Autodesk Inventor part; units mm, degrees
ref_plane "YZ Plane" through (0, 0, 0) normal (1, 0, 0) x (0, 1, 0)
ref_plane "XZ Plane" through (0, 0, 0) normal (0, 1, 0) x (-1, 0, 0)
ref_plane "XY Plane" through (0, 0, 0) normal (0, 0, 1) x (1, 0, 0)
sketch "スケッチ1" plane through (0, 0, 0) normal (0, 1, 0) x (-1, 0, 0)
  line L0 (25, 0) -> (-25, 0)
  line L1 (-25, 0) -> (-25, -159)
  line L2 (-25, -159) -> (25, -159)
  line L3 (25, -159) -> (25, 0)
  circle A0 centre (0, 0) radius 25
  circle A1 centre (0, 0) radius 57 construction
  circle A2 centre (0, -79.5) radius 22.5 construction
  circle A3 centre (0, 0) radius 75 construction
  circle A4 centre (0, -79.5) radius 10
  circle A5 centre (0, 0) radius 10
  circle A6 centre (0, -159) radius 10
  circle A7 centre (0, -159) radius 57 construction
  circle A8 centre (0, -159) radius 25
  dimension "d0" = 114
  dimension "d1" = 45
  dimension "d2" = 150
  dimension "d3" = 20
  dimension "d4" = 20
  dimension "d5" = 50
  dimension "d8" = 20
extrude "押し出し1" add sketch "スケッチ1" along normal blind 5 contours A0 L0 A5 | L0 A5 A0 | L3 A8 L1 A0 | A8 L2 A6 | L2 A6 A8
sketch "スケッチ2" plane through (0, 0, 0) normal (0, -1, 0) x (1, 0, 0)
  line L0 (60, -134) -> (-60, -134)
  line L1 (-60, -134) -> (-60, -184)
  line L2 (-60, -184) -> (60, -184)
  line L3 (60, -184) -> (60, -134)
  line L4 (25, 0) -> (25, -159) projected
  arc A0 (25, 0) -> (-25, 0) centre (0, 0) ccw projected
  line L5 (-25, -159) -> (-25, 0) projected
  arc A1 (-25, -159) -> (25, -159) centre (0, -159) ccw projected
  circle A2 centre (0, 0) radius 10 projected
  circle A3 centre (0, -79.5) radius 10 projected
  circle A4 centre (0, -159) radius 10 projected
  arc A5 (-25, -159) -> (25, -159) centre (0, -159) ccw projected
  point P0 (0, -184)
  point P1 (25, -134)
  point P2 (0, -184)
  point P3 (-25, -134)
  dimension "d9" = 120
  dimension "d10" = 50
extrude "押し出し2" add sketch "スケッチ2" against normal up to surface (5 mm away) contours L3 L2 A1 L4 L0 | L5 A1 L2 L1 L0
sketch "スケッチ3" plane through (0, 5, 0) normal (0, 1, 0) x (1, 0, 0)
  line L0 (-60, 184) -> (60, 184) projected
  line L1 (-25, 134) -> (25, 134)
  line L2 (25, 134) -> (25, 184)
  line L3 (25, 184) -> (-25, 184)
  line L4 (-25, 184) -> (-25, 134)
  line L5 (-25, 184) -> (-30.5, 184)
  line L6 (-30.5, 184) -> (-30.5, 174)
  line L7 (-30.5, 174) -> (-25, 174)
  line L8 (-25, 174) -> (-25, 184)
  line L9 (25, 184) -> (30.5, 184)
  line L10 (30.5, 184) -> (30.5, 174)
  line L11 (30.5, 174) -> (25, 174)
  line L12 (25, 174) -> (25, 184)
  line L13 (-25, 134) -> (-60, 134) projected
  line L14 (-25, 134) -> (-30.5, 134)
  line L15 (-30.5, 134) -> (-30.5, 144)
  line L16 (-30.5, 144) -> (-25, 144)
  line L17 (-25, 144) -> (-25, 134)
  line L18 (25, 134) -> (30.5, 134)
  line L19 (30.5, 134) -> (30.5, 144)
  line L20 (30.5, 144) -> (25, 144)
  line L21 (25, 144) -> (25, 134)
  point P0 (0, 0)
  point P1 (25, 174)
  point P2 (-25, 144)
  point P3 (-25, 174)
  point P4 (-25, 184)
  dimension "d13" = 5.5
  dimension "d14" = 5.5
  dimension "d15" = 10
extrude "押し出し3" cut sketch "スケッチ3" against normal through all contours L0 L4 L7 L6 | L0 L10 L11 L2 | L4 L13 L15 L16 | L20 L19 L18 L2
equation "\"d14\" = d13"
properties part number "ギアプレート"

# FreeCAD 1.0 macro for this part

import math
import FreeCAD as App
import Part
import Sketcher
from FreeCAD import Vector
Q = App.Units.Quantity


def add_polygon(sketch, points):
    """Adds a closed chain of lines whose ends are joined by coincident constraints."""
    first, n = sketch.GeometryCount, len(points)
    for a, b in zip(points, points[1:] + points[:1]):
        sketch.addGeometry(Part.LineSegment(App.Vector(*a, 0), App.Vector(*b, 0)), False)
    for i in range(n):
        sketch.addConstraint(Sketcher.Constraint("Coincident", first + i, 2, first + (i + 1) % n, 1))

doc = App.newDocument("Part")
body = doc.addObject("PartDesign::Body", "Body")

sketch1 = doc.addObject("Sketcher::SketchObject", "Sketch")
body.addObject(sketch1)
sketch1.AttachmentSupport = (doc.XZ_Plane, [""])
sketch1.MapMode = "FlatFace"
sketch1.addGeometry([
    Part.LineSegment(Vector(-25, -159, 0), Vector(-25, 0, 0)),
    Part.ArcOfCircle(Part.Circle(Vector(0, 0, 0), Vector(0, 0, 1), 25), math.radians(0), math.radians(180)),
    Part.LineSegment(Vector(25, 0, 0), Vector(25, -159, 0)),
    Part.ArcOfCircle(Part.Circle(Vector(0, -159, 0), Vector(0, 0, 1), 25), math.radians(180), math.radians(360)),
    Part.Circle(Vector(0, 0, 0), Vector(0, 0, 1), 10),
    Part.Circle(Vector(0, -79.5, 0), Vector(0, 0, 1), 10),
    Part.Circle(Vector(0, -159, 0), Vector(0, 0, 1), 10),
], False)
sketch1.addConstraint([
    Sketcher.Constraint("Tangent", 0, 2, 1, 2),
    Sketcher.Constraint("Tangent", 1, 1, 2, 1),
    Sketcher.Constraint("Tangent", 2, 2, 3, 2),
    Sketcher.Constraint("Tangent", 3, 1, 0, 1),
    Sketcher.Constraint("Vertical", 0),
    Sketcher.Constraint("Vertical", 2),
    Sketcher.Constraint("Coincident", 1, 3, -1, 1),
    Sketcher.Constraint("Coincident", 4, 3, -1, 1),
    Sketcher.Constraint("Coincident", 6, 3, 3, 3),
    Sketcher.Constraint("Equal", 4, 5),
    Sketcher.Constraint("Equal", 5, 6),
    Sketcher.Constraint("PointOnObject", 5, 3, -2),
    Sketcher.Constraint("Diameter", 4, Q("20 mm")),
    Sketcher.Constraint("Radius", 1, Q("25 mm")),
    Sketcher.Constraint("DistanceY", 0, 1, 0, 2, Q("159 mm")),
    Sketcher.Constraint("DistanceY", 5, 3, -1, 1, Q("79.5 mm")),
])
pad1 = doc.addObject("PartDesign::Pad", "Pad")
body.addObject(pad1)
pad1.Profile = sketch1
pad1.Length = 5
pad1.Reversed = True

sketch2 = doc.addObject("Sketcher::SketchObject", "Sketch001")
body.addObject(sketch2)
sketch2.AttachmentSupport = (doc.XZ_Plane, [""])
sketch2.MapMode = "FlatFace"
sketch2.addGeometry([
    Part.LineSegment(Vector(60, -184, 0), Vector(60, -134, 0)),
    Part.LineSegment(Vector(60, -134, 0), Vector(25, -134, 0)),
    Part.LineSegment(Vector(25, -134, 0), Vector(25, -159, 0)),
    Part.ArcOfCircle(Part.Circle(Vector(0, -159, 0), Vector(0, 0, 1), 25), math.radians(-90), math.radians(0)),
    Part.LineSegment(Vector(0, -184, 0), Vector(60, -184, 0)),
    Part.LineSegment(Vector(-25, -159, 0), Vector(-25, -134, 0)),
    Part.LineSegment(Vector(-25, -134, 0), Vector(-60, -134, 0)),
    Part.LineSegment(Vector(-60, -134, 0), Vector(-60, -184, 0)),
    Part.LineSegment(Vector(-60, -184, 0), Vector(0, -184, 0)),
    Part.ArcOfCircle(Part.Circle(Vector(0, -159, 0), Vector(0, 0, 1), 25), math.radians(180), math.radians(270)),
], False)
sketch2.addConstraint([
    Sketcher.Constraint("Coincident", 0, 2, 1, 1),
    Sketcher.Constraint("Coincident", 1, 2, 2, 1),
    Sketcher.Constraint("Tangent", 2, 2, 3, 2),
    Sketcher.Constraint("Tangent", 3, 1, 4, 1),
    Sketcher.Constraint("Coincident", 4, 2, 0, 1),
    Sketcher.Constraint("Coincident", 5, 2, 6, 1),
    Sketcher.Constraint("Coincident", 6, 2, 7, 1),
    Sketcher.Constraint("Coincident", 7, 2, 8, 1),
    Sketcher.Constraint("Tangent", 8, 2, 9, 2),
    Sketcher.Constraint("Tangent", 9, 1, 5, 1),
    Sketcher.Constraint("Vertical", 0),
    Sketcher.Constraint("Horizontal", 1),
    Sketcher.Constraint("Vertical", 2),
    Sketcher.Constraint("Horizontal", 4),
    Sketcher.Constraint("Vertical", 5),
    Sketcher.Constraint("Horizontal", 6),
    Sketcher.Constraint("Vertical", 7),
    Sketcher.Constraint("Horizontal", 8),
    Sketcher.Constraint("Coincident", 9, 3, 3, 3),
    Sketcher.Constraint("Equal", 3, 9),
    Sketcher.Constraint("Symmetric", 1, 2, 5, 2, -2),
    Sketcher.Constraint("Equal", 1, 6),
    Sketcher.Constraint("Radius", 3, Q("25 mm")),
    Sketcher.Constraint("DistanceY", 0, 1, 0, 2, Q("50 mm")),
    Sketcher.Constraint("DistanceX", 1, 2, 1, 1, Q("35 mm")),
    Sketcher.Constraint("DistanceY", 3, 3, -1, 1, Q("159 mm")),
])
pad2 = doc.addObject("PartDesign::Pad", "Pad001")
body.addObject(pad2)
pad2.Profile = sketch2
pad2.Length = 5
pad2.Reversed = True

sketch3 = doc.addObject("Sketcher::SketchObject", "Sketch002")
body.addObject(sketch3)
sketch3.AttachmentSupport = (doc.XZ_Plane, [""])
sketch3.MapMode = "FlatFace"
sketch3.AttachmentOffset = App.Placement(Vector(0, 0, -5), App.Rotation())
add_polygon(sketch3, [(-25, -184), (-30.5, -184), (-30.5, -174), (-25, -174)])
add_polygon(sketch3, [(30.5, -184), (25, -184), (25, -174), (30.5, -174)])
add_polygon(sketch3, [(-25, -134), (-25, -144), (-30.5, -144), (-30.5, -134)])
add_polygon(sketch3, [(30.5, -144), (25, -144), (25, -134), (30.5, -134)])
sketch3.addConstraint([
    Sketcher.Constraint("Horizontal", 0),
    Sketcher.Constraint("Vertical", 1),
    Sketcher.Constraint("Horizontal", 2),
    Sketcher.Constraint("Vertical", 3),
    Sketcher.Constraint("Horizontal", 4),
    Sketcher.Constraint("Vertical", 5),
    Sketcher.Constraint("Horizontal", 6),
    Sketcher.Constraint("Vertical", 7),
    Sketcher.Constraint("Vertical", 8),
    Sketcher.Constraint("Horizontal", 9),
    Sketcher.Constraint("Vertical", 10),
    Sketcher.Constraint("Horizontal", 11),
    Sketcher.Constraint("Horizontal", 12),
    Sketcher.Constraint("Vertical", 13),
    Sketcher.Constraint("Horizontal", 14),
    Sketcher.Constraint("Vertical", 15),
    Sketcher.Constraint("Symmetric", 3, 2, 4, 2, -2),
    Sketcher.Constraint("Symmetric", 1, 2, 6, 2, -2),
    Sketcher.Constraint("Symmetric", 8, 2, 12, 2, -2),
    Sketcher.Constraint("Symmetric", 10, 2, 14, 2, -2),
    Sketcher.Constraint("Vertical", 3, 2, 8, 2),
    Sketcher.Constraint("Vertical", 1, 2, 9, 2),
    Sketcher.Constraint("Equal", 7, 8),
    Sketcher.Constraint("DistanceY", 1, 1, 1, 2, Q("10 mm")),
    Sketcher.Constraint("DistanceX", 0, 2, 0, 1, Q("5.5 mm")),
    Sketcher.Constraint("DistanceY", 0, 2, -1, 1, Q("184 mm")),
    Sketcher.Constraint("DistanceX", 2, 2, -1, 1, Q("25 mm")),
    Sketcher.Constraint("DistanceY", 8, 2, -1, 1, Q("144 mm")),
])
pocket1 = doc.addObject("PartDesign::Pocket", "Pocket")
body.addObject(pocket1)
pocket1.Profile = sketch3
pocket1.Type = "ThroughAll"
pocket1.Reversed = True

doc.recompute()
